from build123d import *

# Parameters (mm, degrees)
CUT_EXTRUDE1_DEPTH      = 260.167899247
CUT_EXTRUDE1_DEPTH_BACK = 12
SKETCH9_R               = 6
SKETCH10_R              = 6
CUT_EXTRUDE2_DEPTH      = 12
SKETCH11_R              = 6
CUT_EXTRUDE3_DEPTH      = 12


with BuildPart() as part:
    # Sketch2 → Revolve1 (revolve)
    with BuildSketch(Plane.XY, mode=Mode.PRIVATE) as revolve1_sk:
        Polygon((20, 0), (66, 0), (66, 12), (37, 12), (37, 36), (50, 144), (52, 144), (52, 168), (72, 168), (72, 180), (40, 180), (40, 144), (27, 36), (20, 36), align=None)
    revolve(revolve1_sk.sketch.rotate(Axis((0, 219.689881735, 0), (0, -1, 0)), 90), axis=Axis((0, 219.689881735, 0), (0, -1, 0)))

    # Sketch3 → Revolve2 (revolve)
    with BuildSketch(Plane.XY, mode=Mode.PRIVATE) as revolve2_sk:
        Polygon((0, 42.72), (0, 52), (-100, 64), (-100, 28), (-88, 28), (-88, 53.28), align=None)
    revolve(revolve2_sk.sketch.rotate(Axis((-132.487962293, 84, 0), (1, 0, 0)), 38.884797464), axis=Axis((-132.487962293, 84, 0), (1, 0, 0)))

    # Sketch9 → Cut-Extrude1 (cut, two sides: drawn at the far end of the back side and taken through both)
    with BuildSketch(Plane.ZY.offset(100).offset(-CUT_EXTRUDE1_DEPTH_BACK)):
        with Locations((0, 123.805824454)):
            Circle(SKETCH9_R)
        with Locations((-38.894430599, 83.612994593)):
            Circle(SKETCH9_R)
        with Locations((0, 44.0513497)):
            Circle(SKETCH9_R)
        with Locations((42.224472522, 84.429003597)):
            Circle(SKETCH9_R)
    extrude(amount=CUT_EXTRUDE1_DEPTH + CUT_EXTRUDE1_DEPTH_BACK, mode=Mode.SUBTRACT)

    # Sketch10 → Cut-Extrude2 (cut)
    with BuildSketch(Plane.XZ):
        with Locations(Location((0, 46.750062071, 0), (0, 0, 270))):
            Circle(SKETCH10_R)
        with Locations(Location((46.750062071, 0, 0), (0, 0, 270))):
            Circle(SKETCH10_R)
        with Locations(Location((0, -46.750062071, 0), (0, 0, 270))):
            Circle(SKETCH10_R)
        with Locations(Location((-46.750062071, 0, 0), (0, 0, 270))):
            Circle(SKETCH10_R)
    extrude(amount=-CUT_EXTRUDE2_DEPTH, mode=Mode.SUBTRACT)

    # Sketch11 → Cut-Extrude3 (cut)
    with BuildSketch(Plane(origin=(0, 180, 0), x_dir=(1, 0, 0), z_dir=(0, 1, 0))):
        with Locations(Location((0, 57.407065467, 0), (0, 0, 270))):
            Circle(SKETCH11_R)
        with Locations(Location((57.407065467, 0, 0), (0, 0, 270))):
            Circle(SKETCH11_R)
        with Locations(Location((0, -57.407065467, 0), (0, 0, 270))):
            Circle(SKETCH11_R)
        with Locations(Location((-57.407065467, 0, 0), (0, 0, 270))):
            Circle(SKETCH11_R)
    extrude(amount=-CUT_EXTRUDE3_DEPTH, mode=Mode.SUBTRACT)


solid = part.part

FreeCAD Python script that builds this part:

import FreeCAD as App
import Part
import Sketcher


def add_polygon(sketch, points):
    """Adds a closed chain of lines whose ends are joined by coincident constraints."""
    first, n = sketch.GeometryCount, len(points)
    for a, b in zip(points, points[1:] + points[:1]):
        sketch.addGeometry(Part.LineSegment(App.Vector(*a, 0), App.Vector(*b, 0)), False)
    for i in range(n):
        sketch.addConstraint(Sketcher.Constraint("Coincident", first + i, 2, first + (i + 1) % n, 1))

doc = App.newDocument("Part")
body = doc.addObject("PartDesign::Body", "Body")

sketch1 = doc.addObject("Sketcher::SketchObject", "Sketch")
body.addObject(sketch1)
sketch1.AttachmentSupport = (doc.XY_Plane, [""])
sketch1.MapMode = "FlatFace"
add_polygon(sketch1, [(20, 0), (66, 0), (66, 12), (37, 12), (37, 36), (50, 144), (52, 144), (52, 168), (72, 168), (72, 180), (40, 180), (40, 144), (27, 36), (20, 36)])
sketch1.addConstraint(Sketcher.Constraint("Horizontal", 0))
sketch1.addConstraint(Sketcher.Constraint("Vertical", 1))
sketch1.addConstraint(Sketcher.Constraint("Horizontal", 2))
sketch1.addConstraint(Sketcher.Constraint("Vertical", 3))
sketch1.addConstraint(Sketcher.Constraint("Horizontal", 5))
sketch1.addConstraint(Sketcher.Constraint("Vertical", 6))
sketch1.addConstraint(Sketcher.Constraint("Horizontal", 7))
sketch1.addConstraint(Sketcher.Constraint("Vertical", 8))
sketch1.addConstraint(Sketcher.Constraint("Horizontal", 9))
sketch1.addConstraint(Sketcher.Constraint("Vertical", 10))
sketch1.addConstraint(Sketcher.Constraint("Horizontal", 12))
sketch1.addConstraint(Sketcher.Constraint("Vertical", 13))
sketch1.addConstraint(Sketcher.Constraint("PointOnObject", 0, 2, -1))
sketch1.addConstraint(Sketcher.Constraint("Parallel", 4, 11))
sketch1.addConstraint(Sketcher.Constraint("Horizontal", 5, 2, 10, 2))
sketch1.addConstraint(Sketcher.Constraint("Horizontal", 3, 2, 11, 2))
sketch1.addConstraint(Sketcher.Constraint("Equal", 3, 6))
sketch1.addConstraint(Sketcher.Constraint("Equal", 1, 8))
sketch1.addConstraint(Sketcher.Constraint("DistanceX", 0, 1, 0, 2, 46.0))
sketch1.addConstraint(Sketcher.Constraint("DistanceX", 2, 2, 2, 1, 29.0))
sketch1.addConstraint(Sketcher.Constraint("DistanceX", 5, 1, 5, 2, 2.0))
sketch1.addConstraint(Sketcher.Constraint("DistanceX", 7, 1, 7, 2, 20.0))
sketch1.addConstraint(Sketcher.Constraint("DistanceX", 9, 2, 9, 1, 32.0))
sketch1.addConstraint(Sketcher.Constraint("DistanceY", 1, 1, 1, 2, 12.0))
sketch1.addConstraint(Sketcher.Constraint("DistanceY", 3, 1, 3, 2, 24.0))
sketch1.addConstraint(Sketcher.Constraint("DistanceX", -1, 1, 0, 2, 66.0))
sketch1.addConstraint(Sketcher.Constraint("DistanceX", -1, 1, 4, 2, 50.0))
sketch1.addConstraint(Sketcher.Constraint("DistanceY", -1, 1, 4, 2, 144.0))
revolution = doc.addObject("PartDesign::Revolution", "Revolution")
body.addObject(revolution)
revolution.Profile = sketch1
revolution.ReferenceAxis = (sketch1, ["V_Axis"])
revolution.Angle = 360

sketch2 = doc.addObject("Sketcher::SketchObject", "Sketch001")
body.addObject(sketch2)
sketch2.AttachmentSupport = (doc.XY_Plane, [""])
sketch2.MapMode = "FlatFace"
add_polygon(sketch2, [(0, 43), (0, 52), (-100, 64), (-100, 28), (-88, 28), (-88, 53)])
sketch2.addGeometry(Part.LineSegment(App.Vector(-100, 84, 0), App.Vector(0, 84, 0)), True)
sketch2.addConstraint(Sketcher.Constraint("Vertical", 0))
sketch2.addConstraint(Sketcher.Constraint("Vertical", 2))
sketch2.addConstraint(Sketcher.Constraint("Horizontal", 3))
sketch2.addConstraint(Sketcher.Constraint("Vertical", 4))
sketch2.addConstraint(Sketcher.Constraint("Horizontal", 6))
sketch2.addConstraint(Sketcher.Constraint("PointOnObject", 0, 2, -2))
sketch2.addConstraint(Sketcher.Constraint("PointOnObject", 6, 2, -2))
sketch2.addConstraint(Sketcher.Constraint("Parallel", 1, 5))
sketch2.addConstraint(Sketcher.Constraint("Vertical", 2, 2, 6, 1))
sketch2.addConstraint(Sketcher.Constraint("DistanceX", 3, 1, 3, 2, 12.0))
sketch2.addConstraint(Sketcher.Constraint("DistanceX", 6, 1, 6, 2, 100.0))
sketch2.addConstraint(Sketcher.Constraint("DistanceY", 2, 2, 2, 1, 36.0))
sketch2.addConstraint(Sketcher.Constraint("DistanceY", -1, 1, 0, 2, 52.0))
sketch2.addConstraint(Sketcher.Constraint("DistanceY", -1, 1, 1, 2, 64.0))
sketch2.addConstraint(Sketcher.Constraint("DistanceY", -1, 1, 6, 1, 84.0))
sketch2.addConstraint(Sketcher.Constraint("DistanceY", 0, 1, 0, 2, 9.28))
revolution2 = doc.addObject("PartDesign::Revolution", "Revolution001")
body.addObject(revolution2)
revolution2.Profile = sketch2
revolution2.ReferenceAxis = (sketch2, ["Axis0"])
revolution2.Angle = 360

sketch3 = doc.addObject("Sketcher::SketchObject", "Sketch002")
body.addObject(sketch3)
sketch3.AttachmentSupport = (doc.YZ_Plane, [""])
sketch3.MapMode = "FlatFace"
sketch3.AttachmentOffset = App.Placement(App.Vector(0, 0, -100), App.Rotation())
sketch3.addGeometry(Part.Circle(App.Vector(124, 0, 0), App.Vector(0, 0, 1), 6), False)
sketch3.addGeometry(Part.Circle(App.Vector(84, -39, 0), App.Vector(0, 0, 1), 6), False)
sketch3.addGeometry(Part.Circle(App.Vector(44, 0, 0), App.Vector(0, 0, 1), 6), False)
sketch3.addGeometry(Part.Circle(App.Vector(84, 42, 0), App.Vector(0, 0, 1), 6), False)
sketch3.addConstraint(Sketcher.Constraint("Equal", 0, 1))
sketch3.addConstraint(Sketcher.Constraint("Equal", 1, 2))
sketch3.addConstraint(Sketcher.Constraint("Equal", 2, 3))
sketch3.addConstraint(Sketcher.Constraint("PointOnObject", 0, 3, -1))
sketch3.addConstraint(Sketcher.Constraint("PointOnObject", 2, 3, -1))
sketch3.addConstraint(Sketcher.Constraint("Diameter", 0, 12.0))
sketch3.addConstraint(Sketcher.Constraint("DistanceY", 1, 3, -1, 1, 38.894431))
sketch3.addConstraint(Sketcher.Constraint("DistanceX", -1, 1, 2, 3, 44.05135))
sketch3.addConstraint(Sketcher.Constraint("DistanceX", 1, 3, 0, 3, 40.19283))
sketch3.addConstraint(Sketcher.Constraint("DistanceX", 3, 3, 0, 3, 39.376821))
sketch3.addConstraint(Sketcher.Constraint("DistanceX", -1, 1, 0, 3, 123.805824))
sketch3.addConstraint(Sketcher.Constraint("DistanceY", -1, 1, 3, 3, 42.224473))
pocket1 = doc.addObject("PartDesign::Pocket", "Pocket")
body.addObject(pocket1)
pocket1.Profile = sketch3
pocket1.Type = "TwoLengths"
pocket1.Length = 260.167899
pocket1.Length2 = 12

sketch4 = doc.addObject("Sketcher::SketchObject", "Sketch003")
body.addObject(sketch4)
sketch4.AttachmentSupport = (doc.XZ_Plane, [""])
sketch4.MapMode = "FlatFace"
sketch4.addGeometry(Part.Circle(App.Vector(0, 47, 0), App.Vector(0, 0, 1), 6), False)
sketch4.addGeometry(Part.Circle(App.Vector(47, 0, 0), App.Vector(0, 0, 1), 6), False)
sketch4.addGeometry(Part.Circle(App.Vector(0, -47, 0), App.Vector(0, 0, 1), 6), False)
sketch4.addGeometry(Part.Circle(App.Vector(-47, 0, 0), App.Vector(0, 0, 1), 6), False)
sketch4.addConstraint(Sketcher.Constraint("Equal", 0, 1))
sketch4.addConstraint(Sketcher.Constraint("Equal", 1, 2))
sketch4.addConstraint(Sketcher.Constraint("Equal", 2, 3))
sketch4.addConstraint(Sketcher.Constraint("Symmetric", 0, 3, 2, 3, -1, 1))
sketch4.addConstraint(Sketcher.Constraint("Symmetric", 1, 3, 3, 3, -1, 1))
sketch4.addConstraint(Sketcher.Constraint("PointOnObject", 0, 3, -2))
sketch4.addConstraint(Sketcher.Constraint("PointOnObject", 1, 3, -1))
sketch4.addConstraint(Sketcher.Constraint("Diameter", 0, 12.0))
sketch4.addConstraint(Sketcher.Constraint("DistanceY", -1, 1, 0, 3, 46.750062))
sketch4.addConstraint(Sketcher.Constraint("DistanceX", -1, 1, 1, 3, 46.750062))
pocket2 = doc.addObject("PartDesign::Pocket", "Pocket001")
body.addObject(pocket2)
pocket2.Profile = sketch4
pocket2.Length = 12

sketch5 = doc.addObject("Sketcher::SketchObject", "Sketch004")
body.addObject(sketch5)
sketch5.AttachmentSupport = (doc.XZ_Plane, [""])
sketch5.MapMode = "FlatFace"
sketch5.AttachmentOffset = App.Placement(App.Vector(0, 0, -180), App.Rotation())
sketch5.addGeometry(Part.Circle(App.Vector(0, -57, 0), App.Vector(0, 0, 1), 6), False)
sketch5.addGeometry(Part.Circle(App.Vector(57, 0, 0), App.Vector(0, 0, 1), 6), False)
sketch5.addGeometry(Part.Circle(App.Vector(0, 57, 0), App.Vector(0, 0, 1), 6), False)
sketch5.addGeometry(Part.Circle(App.Vector(-57, 0, 0), App.Vector(0, 0, 1), 6), False)
sketch5.addConstraint(Sketcher.Constraint("Equal", 0, 1))
sketch5.addConstraint(Sketcher.Constraint("Equal", 1, 2))
sketch5.addConstraint(Sketcher.Constraint("Equal", 2, 3))
sketch5.addConstraint(Sketcher.Constraint("Symmetric", 0, 3, 2, 3, -1, 1))
sketch5.addConstraint(Sketcher.Constraint("Symmetric", 1, 3, 3, 3, -1, 1))
sketch5.addConstraint(Sketcher.Constraint("PointOnObject", 0, 3, -2))
sketch5.addConstraint(Sketcher.Constraint("PointOnObject", 1, 3, -1))
sketch5.addConstraint(Sketcher.Constraint("Diameter", 0, 12.0))
sketch5.addConstraint(Sketcher.Constraint("DistanceY", 0, 3, 2, 3, 114.814131))
sketch5.addConstraint(Sketcher.Constraint("DistanceX", 3, 3, 1, 3, 114.814131))
pocket3 = doc.addObject("PartDesign::Pocket", "Pocket002")
body.addObject(pocket3)
pocket3.Profile = sketch5
pocket3.Length = 12
pocket3.Reversed = True

doc.recompute()
